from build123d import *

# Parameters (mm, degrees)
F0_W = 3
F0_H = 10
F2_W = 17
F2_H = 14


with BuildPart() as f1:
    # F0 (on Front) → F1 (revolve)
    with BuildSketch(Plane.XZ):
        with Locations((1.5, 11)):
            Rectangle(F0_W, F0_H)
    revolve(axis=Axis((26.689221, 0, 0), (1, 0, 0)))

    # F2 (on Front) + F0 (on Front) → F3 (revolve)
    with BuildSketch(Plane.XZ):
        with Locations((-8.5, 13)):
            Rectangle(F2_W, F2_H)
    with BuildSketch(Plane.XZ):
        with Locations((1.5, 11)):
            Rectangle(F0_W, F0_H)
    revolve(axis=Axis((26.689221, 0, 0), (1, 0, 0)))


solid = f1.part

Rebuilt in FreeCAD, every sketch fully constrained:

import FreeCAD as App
import Part
import Sketcher


def add_polygon(sketch, points):
    """Adds a closed chain of lines whose ends are joined by coincident constraints."""
    first, n = sketch.GeometryCount, len(points)
    for a, b in zip(points, points[1:] + points[:1]):
        sketch.addGeometry(Part.LineSegment(App.Vector(*a, 0), App.Vector(*b, 0)), False)
    for i in range(n):
        sketch.addConstraint(Sketcher.Constraint("Coincident", first + i, 2, first + (i + 1) % n, 1))

doc = App.newDocument("Part")
body = doc.addObject("PartDesign::Body", "Body")

# Sketch on XZ plane
sketch1 = body.newObject("Sketcher::SketchObject", "Sketch")
sketch1.AttachmentSupport = (doc.getObject("XZ_Plane"), [""])
sketch1.MapMode = "FlatFace"
add_polygon(sketch1, [(0, 16), (0, 6), (3, 6), (3, 16)])  # lines 0-3
sketch1.addConstraint([
    Sketcher.Constraint("Vertical", 0),
    Sketcher.Constraint("Horizontal", 1),
    Sketcher.Constraint("Vertical", 2),
    Sketcher.Constraint("Horizontal", 3),
    Sketcher.Constraint("PointOnObject", 0, 2, -2),
    Sketcher.Constraint("DistanceX", 1, 1, 1, 2, 3.0),
    Sketcher.Constraint("DistanceY", 0, 2, 0, 1, 10.0),
    Sketcher.Constraint("DistanceY", -1, 1, 0, 2, 6.0),
])
revolution = body.newObject("PartDesign::Revolution", "Revolution")
revolution.Profile = sketch1
revolution.ReferenceAxis = (sketch1, ["H_Axis"])
revolution.Angle = 360

# Sketch on XZ plane
sketch2 = body.newObject("Sketcher::SketchObject", "Sketch001")
sketch2.AttachmentSupport = (doc.getObject("XZ_Plane"), [""])
sketch2.MapMode = "FlatFace"
add_polygon(sketch2, [(-17, 20), (-17, 6), (3, 6), (3, 16), (0, 16), (0, 20)])  # lines 0-5
sketch2.addConstraint([
    Sketcher.Constraint("Vertical", 0),
    Sketcher.Constraint("Horizontal", 1),
    Sketcher.Constraint("Vertical", 2),
    Sketcher.Constraint("Horizontal", 3),
    Sketcher.Constraint("Vertical", 4),
    Sketcher.Constraint("Horizontal", 5),
    Sketcher.Constraint("PointOnObject", 3, 2, -2),
    Sketcher.Constraint("DistanceX", 1, 1, 1, 2, 20.0),
    Sketcher.Constraint("DistanceX", 3, 2, 3, 1, 3.0),
    Sketcher.Constraint("DistanceY", 0, 2, 0, 1, 14.0),
    Sketcher.Constraint("DistanceY", 2, 1, 2, 2, 10.0),
    Sketcher.Constraint("DistanceY", -1, 1, 0, 2, 6.0),
])
revolution2 = body.newObject("PartDesign::Revolution", "Revolution001")
revolution2.Profile = sketch2
revolution2.ReferenceAxis = (sketch2, ["H_Axis"])
revolution2.Angle = 360

doc.recompute()
